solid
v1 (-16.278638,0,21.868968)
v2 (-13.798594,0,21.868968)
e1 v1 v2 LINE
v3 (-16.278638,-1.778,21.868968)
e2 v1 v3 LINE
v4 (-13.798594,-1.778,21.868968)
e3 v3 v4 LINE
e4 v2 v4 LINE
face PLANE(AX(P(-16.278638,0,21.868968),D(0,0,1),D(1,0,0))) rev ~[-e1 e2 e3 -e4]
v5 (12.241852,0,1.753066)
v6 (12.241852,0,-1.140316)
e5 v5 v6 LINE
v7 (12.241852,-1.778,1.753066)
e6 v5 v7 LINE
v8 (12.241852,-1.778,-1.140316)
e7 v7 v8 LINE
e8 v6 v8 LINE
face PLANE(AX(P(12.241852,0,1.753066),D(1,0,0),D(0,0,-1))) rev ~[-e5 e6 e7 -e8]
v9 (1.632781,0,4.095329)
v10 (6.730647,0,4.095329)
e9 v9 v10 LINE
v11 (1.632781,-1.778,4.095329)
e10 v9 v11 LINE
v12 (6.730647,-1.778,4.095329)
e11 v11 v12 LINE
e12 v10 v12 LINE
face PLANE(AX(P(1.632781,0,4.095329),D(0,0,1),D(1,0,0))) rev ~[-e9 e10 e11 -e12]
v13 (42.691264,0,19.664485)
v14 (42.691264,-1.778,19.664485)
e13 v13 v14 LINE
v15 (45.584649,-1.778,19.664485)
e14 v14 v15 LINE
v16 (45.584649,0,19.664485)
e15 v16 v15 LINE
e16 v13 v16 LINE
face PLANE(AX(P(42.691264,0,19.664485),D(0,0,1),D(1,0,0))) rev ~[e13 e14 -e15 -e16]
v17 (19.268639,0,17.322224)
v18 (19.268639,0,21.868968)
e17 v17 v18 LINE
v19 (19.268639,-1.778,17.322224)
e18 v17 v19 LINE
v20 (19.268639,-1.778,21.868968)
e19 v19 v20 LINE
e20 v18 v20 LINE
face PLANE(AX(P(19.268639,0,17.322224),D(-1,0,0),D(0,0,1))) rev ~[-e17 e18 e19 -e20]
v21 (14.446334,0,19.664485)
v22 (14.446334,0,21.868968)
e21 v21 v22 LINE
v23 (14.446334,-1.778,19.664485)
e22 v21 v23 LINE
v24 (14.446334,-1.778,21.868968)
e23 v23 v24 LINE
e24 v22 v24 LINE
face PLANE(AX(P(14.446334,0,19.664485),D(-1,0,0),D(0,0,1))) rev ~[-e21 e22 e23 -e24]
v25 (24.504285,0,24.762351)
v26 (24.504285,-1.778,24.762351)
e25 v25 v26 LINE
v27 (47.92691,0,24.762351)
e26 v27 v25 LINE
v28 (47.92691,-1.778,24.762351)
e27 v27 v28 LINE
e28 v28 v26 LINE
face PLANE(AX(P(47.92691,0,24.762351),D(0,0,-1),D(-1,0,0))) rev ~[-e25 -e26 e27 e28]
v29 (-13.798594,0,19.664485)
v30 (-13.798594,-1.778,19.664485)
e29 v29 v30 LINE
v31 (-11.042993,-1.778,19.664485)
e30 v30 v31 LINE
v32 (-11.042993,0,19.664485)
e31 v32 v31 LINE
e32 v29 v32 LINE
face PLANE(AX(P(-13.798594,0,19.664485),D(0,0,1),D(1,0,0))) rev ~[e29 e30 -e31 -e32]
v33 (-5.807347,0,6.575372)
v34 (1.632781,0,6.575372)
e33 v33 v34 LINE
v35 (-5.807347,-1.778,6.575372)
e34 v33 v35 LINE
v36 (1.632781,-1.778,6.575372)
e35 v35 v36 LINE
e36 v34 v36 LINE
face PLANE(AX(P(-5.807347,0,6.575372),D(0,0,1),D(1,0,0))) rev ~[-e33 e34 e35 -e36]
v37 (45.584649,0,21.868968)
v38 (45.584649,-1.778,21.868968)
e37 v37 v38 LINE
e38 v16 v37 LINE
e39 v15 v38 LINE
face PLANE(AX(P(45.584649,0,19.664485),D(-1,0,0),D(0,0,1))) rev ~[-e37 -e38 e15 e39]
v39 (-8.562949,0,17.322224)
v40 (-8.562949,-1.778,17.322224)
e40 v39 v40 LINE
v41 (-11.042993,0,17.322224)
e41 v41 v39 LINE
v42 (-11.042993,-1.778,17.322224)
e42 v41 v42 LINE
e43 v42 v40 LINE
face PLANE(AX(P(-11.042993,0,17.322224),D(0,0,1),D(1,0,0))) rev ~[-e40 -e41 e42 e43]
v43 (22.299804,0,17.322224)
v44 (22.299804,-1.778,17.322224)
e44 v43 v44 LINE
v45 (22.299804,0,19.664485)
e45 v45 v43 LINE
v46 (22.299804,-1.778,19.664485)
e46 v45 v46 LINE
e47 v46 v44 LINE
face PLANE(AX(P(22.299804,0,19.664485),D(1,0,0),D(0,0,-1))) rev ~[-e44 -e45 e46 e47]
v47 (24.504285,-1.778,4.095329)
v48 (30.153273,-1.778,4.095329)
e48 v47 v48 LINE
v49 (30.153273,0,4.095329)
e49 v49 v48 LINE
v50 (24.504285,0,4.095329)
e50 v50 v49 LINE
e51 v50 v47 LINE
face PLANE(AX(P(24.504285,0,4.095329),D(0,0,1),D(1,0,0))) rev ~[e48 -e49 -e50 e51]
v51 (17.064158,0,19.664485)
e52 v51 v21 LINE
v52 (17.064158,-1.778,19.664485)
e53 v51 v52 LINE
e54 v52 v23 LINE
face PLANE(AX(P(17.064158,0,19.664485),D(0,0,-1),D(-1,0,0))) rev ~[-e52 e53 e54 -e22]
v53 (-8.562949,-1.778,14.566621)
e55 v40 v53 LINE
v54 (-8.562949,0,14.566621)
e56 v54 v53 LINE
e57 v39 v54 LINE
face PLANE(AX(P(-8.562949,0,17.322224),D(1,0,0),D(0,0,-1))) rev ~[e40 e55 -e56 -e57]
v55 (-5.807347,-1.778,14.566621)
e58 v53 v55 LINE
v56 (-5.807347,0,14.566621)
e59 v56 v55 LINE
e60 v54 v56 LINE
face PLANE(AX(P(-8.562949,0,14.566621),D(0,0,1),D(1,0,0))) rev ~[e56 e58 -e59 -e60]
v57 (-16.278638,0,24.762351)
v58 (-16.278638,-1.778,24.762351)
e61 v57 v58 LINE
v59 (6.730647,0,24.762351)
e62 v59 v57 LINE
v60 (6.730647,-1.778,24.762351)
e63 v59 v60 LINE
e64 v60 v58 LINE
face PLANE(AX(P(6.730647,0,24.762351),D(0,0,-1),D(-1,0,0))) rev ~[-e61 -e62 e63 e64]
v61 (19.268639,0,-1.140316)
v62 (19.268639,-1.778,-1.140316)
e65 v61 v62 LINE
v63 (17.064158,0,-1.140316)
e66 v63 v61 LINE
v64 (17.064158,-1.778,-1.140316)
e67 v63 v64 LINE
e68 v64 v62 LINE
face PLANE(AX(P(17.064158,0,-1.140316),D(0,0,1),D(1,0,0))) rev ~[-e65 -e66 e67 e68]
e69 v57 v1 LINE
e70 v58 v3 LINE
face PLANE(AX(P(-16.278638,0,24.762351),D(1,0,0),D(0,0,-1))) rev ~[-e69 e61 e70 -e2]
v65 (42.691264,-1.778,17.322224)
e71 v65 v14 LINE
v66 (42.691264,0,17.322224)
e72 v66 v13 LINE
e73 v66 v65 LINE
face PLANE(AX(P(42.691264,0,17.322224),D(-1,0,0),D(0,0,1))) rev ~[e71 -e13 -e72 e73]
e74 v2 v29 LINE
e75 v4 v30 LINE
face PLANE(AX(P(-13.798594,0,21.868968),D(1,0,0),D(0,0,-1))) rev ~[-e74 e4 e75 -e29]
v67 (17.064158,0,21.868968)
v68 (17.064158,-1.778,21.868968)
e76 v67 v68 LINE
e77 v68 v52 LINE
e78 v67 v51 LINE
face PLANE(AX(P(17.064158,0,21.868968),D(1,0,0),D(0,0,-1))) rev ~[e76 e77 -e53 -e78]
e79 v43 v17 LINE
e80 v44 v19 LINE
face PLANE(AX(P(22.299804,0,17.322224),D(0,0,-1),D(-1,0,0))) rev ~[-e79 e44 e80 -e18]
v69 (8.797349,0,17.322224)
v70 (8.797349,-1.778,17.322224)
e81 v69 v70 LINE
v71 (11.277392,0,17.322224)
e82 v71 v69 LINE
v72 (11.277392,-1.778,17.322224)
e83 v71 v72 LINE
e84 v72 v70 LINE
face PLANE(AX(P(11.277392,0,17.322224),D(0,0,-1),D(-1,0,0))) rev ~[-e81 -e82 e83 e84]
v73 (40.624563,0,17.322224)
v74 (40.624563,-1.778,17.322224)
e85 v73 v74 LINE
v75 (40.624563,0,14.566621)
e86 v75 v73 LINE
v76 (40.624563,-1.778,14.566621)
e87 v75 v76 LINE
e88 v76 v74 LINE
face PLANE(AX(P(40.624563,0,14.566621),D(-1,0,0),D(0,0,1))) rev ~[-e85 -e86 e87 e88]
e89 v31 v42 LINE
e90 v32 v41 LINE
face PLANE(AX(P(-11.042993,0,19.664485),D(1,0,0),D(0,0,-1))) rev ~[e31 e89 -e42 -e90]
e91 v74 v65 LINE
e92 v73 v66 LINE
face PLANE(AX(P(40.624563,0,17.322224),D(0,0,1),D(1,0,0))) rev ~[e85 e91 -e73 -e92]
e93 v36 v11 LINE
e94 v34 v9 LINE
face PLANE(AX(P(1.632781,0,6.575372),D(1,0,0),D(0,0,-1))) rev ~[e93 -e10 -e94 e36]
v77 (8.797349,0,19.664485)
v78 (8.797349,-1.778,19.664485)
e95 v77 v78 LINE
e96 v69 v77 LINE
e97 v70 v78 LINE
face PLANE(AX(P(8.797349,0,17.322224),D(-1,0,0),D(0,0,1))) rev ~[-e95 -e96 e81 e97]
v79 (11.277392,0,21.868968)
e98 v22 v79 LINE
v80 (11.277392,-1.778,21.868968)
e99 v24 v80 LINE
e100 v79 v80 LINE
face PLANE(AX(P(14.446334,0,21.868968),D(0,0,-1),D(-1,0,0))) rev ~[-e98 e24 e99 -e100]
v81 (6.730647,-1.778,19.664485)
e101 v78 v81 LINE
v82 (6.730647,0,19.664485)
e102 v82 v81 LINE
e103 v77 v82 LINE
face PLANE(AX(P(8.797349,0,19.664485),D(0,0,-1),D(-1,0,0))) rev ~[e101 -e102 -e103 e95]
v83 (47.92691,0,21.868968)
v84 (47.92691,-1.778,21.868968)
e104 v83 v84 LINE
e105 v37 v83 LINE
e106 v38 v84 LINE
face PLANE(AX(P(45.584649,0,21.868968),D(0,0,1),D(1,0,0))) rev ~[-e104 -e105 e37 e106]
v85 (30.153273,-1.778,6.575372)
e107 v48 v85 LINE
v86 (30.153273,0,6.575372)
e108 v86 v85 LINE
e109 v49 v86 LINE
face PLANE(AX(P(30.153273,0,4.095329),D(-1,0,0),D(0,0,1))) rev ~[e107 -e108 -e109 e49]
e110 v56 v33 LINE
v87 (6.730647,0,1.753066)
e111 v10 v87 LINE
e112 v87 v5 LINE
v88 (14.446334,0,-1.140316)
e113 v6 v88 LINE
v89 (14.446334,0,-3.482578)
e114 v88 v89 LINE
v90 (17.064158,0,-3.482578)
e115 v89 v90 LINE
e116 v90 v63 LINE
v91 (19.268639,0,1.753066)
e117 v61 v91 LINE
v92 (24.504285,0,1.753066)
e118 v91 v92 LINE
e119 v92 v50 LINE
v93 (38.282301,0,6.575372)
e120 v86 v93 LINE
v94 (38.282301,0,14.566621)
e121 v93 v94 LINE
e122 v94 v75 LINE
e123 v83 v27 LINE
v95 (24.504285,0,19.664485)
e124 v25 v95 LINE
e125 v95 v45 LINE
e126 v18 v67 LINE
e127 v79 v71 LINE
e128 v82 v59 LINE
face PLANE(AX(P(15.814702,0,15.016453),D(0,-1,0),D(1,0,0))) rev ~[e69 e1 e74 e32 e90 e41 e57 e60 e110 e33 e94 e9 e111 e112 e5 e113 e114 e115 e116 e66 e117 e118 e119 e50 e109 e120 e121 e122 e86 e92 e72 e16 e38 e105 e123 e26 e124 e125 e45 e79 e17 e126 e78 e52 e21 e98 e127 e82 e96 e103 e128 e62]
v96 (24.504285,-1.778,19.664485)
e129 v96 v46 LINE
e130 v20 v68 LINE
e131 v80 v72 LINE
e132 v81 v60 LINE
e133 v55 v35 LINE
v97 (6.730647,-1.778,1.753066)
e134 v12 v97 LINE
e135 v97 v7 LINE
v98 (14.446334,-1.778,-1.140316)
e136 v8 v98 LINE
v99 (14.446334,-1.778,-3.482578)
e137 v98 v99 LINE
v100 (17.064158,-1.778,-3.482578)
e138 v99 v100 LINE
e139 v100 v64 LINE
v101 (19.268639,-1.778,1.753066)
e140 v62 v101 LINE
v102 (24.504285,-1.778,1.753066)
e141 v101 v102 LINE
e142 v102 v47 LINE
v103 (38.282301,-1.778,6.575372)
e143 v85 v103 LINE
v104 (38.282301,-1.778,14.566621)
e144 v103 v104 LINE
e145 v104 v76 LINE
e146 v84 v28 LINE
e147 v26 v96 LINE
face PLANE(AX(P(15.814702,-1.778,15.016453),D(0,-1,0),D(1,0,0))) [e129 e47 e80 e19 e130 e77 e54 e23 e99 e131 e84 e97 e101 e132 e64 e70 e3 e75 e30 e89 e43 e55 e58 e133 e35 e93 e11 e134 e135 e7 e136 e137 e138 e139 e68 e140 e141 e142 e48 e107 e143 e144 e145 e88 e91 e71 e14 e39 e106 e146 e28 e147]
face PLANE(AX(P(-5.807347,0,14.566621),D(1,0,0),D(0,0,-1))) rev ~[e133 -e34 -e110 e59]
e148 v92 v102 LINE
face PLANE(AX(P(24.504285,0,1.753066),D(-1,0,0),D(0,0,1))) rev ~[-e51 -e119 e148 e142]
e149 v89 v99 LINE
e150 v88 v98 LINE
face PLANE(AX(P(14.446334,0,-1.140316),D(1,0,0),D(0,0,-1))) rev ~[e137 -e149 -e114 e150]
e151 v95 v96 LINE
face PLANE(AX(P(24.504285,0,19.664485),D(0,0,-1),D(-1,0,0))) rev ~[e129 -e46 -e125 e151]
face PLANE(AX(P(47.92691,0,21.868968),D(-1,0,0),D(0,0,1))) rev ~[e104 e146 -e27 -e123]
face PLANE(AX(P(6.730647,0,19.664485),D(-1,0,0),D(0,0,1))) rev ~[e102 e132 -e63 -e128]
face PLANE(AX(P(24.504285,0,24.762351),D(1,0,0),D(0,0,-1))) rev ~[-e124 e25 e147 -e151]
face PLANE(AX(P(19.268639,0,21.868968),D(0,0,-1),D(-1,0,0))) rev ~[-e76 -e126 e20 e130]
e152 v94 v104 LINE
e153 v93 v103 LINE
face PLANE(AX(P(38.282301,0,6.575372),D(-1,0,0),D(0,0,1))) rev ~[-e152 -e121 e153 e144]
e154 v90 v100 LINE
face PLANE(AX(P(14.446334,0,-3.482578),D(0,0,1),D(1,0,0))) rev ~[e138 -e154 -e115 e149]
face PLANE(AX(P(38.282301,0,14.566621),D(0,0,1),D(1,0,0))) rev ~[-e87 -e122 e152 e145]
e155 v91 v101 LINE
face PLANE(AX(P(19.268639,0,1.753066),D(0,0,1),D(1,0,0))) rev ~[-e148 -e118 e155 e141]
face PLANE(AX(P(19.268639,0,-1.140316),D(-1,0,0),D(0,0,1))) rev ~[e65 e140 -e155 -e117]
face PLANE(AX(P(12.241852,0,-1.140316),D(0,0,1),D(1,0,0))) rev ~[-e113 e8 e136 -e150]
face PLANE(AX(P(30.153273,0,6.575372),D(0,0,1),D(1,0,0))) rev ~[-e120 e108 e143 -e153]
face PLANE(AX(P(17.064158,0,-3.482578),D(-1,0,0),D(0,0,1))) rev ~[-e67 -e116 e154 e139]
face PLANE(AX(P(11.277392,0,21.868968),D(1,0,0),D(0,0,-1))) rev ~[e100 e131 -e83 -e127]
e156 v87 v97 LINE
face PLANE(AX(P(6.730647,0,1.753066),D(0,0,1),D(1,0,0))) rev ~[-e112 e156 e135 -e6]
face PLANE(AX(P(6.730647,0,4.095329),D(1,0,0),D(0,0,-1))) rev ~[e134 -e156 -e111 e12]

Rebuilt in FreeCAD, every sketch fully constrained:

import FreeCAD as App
import Part
import Sketcher
from FreeCAD import Vector
Q = App.Units.Quantity


def add_polygon(sketch, points):
    """Adds a closed chain of lines whose ends are joined by coincident constraints."""
    first, n = sketch.GeometryCount, len(points)
    for a, b in zip(points, points[1:] + points[:1]):
        sketch.addGeometry(Part.LineSegment(App.Vector(*a, 0), App.Vector(*b, 0)), False)
    for i in range(n):
        sketch.addConstraint(Sketcher.Constraint("Coincident", first + i, 2, first + (i + 1) % n, 1))

doc = App.newDocument("Part")
body = doc.addObject("PartDesign::Body", "Body")

sketch1 = body.newObject("Sketcher::SketchObject", "Sketch")
sketch1.AttachmentSupport = (doc.getObject("XZ_Plane"), [""])
sketch1.MapMode = "FlatFace"
add_polygon(sketch1, [(6.730647, 24.762351), (-16.278638, 24.762351), (-16.278638, 21.868968), (-13.798594, 21.868968), (-13.798594, 19.664485), (-11.042993, 19.664485), (-11.042993, 17.322224), (-8.562949, 17.322224), (-8.562949, 14.566621), (-5.807347, 14.566621), (-5.807347, 6.575372), (1.632781, 6.575372), (1.632781, 4.095329), (6.730647, 4.095329), (6.730647, 1.753066), (12.241852, 1.753066), (12.241852, -1.140316), (14.446334, -1.140316), (14.446334, -3.482578), (17.064158, -3.482578), (17.064158, -1.140316), (19.268639, -1.140316), (19.268639, 1.753066), (24.504285, 1.753066), (24.504285, 4.095329), (30.153273, 4.095329), (30.153273, 6.575372), (38.282301, 6.575372), (38.282301, 14.566621), (40.624563, 14.566621), (40.624563, 17.322224), (42.691264, 17.322224), (42.691264, 19.664485), (45.584649, 19.664485), (45.584649, 21.868968), (47.92691, 21.868968), (47.92691, 24.762351), (24.504285, 24.762351), (24.504285, 19.664485), (22.299804, 19.664485), (22.299804, 17.322224), (19.268639, 17.322224), (19.268639, 21.868968), (17.064158, 21.868968), (17.064158, 19.664485), (14.446334, 19.664485), (14.446334, 21.868968), (11.277392, 21.868968), (11.277392, 17.322224), (8.797349, 17.322224), (8.797349, 19.664485), (6.730647, 19.664485)])
sketch1.addConstraint([
    Sketcher.Constraint("Horizontal", 0),
    Sketcher.Constraint("Vertical", 1),
    Sketcher.Constraint("Horizontal", 2),
    Sketcher.Constraint("Vertical", 3),
    Sketcher.Constraint("Horizontal", 4),
    Sketcher.Constraint("Vertical", 5),
    Sketcher.Constraint("Horizontal", 6),
    Sketcher.Constraint("Vertical", 7),
    Sketcher.Constraint("Horizontal", 8),
    Sketcher.Constraint("Vertical", 9),
    Sketcher.Constraint("Horizontal", 10),
    Sketcher.Constraint("Vertical", 11),
    Sketcher.Constraint("Horizontal", 12),
    Sketcher.Constraint("Vertical", 13),
    Sketcher.Constraint("Horizontal", 14),
    Sketcher.Constraint("Vertical", 15),
    Sketcher.Constraint("Horizontal", 16),
    Sketcher.Constraint("Vertical", 17),
    Sketcher.Constraint("Horizontal", 18),
    Sketcher.Constraint("Vertical", 19),
    Sketcher.Constraint("Horizontal", 20),
    Sketcher.Constraint("Vertical", 21),
    Sketcher.Constraint("Horizontal", 22),
    Sketcher.Constraint("Vertical", 23),
    Sketcher.Constraint("Horizontal", 24),
    Sketcher.Constraint("Vertical", 25),
    Sketcher.Constraint("Horizontal", 26),
    Sketcher.Constraint("Vertical", 27),
    Sketcher.Constraint("Horizontal", 28),
    Sketcher.Constraint("Vertical", 29),
    Sketcher.Constraint("Horizontal", 30),
    Sketcher.Constraint("Vertical", 31),
    Sketcher.Constraint("Horizontal", 32),
    Sketcher.Constraint("Vertical", 33),
    Sketcher.Constraint("Horizontal", 34),
    Sketcher.Constraint("Vertical", 35),
    Sketcher.Constraint("Horizontal", 36),
    Sketcher.Constraint("Vertical", 37),
    Sketcher.Constraint("Horizontal", 38),
    Sketcher.Constraint("Vertical", 39),
    Sketcher.Constraint("Horizontal", 40),
    Sketcher.Constraint("Vertical", 41),
    Sketcher.Constraint("Horizontal", 42),
    Sketcher.Constraint("Vertical", 43),
    Sketcher.Constraint("Horizontal", 44),
    Sketcher.Constraint("Vertical", 45),
    Sketcher.Constraint("Horizontal", 46),
    Sketcher.Constraint("Vertical", 47),
    Sketcher.Constraint("Horizontal", 48),
    Sketcher.Constraint("Vertical", 49),
    Sketcher.Constraint("Horizontal", 50),
    Sketcher.Constraint("Vertical", 51),
    Sketcher.Constraint("Horizontal", 16, 2, 19, 2),
    Sketcher.Constraint("Horizontal", 14, 2, 21, 2),
    Sketcher.Constraint("Horizontal", 12, 2, 23, 2),
    Sketcher.Constraint("Horizontal", 10, 2, 25, 2),
    Sketcher.Constraint("Horizontal", 8, 2, 27, 2),
    Sketcher.Constraint("Horizontal", 6, 2, 29, 2),
    Sketcher.Constraint("Horizontal", 4, 2, 31, 2),
    Sketcher.Constraint("Horizontal", 2, 2, 33, 2),
    Sketcher.Constraint("Horizontal", 0, 2, 35, 2),
    Sketcher.Constraint("Horizontal", 32, 2, 37, 2),
    Sketcher.Constraint("Horizontal", 30, 2, 39, 2),
    Sketcher.Constraint("Horizontal", 34, 2, 41, 2),
    Sketcher.Constraint("Horizontal", 38, 2, 43, 2),
    Sketcher.Constraint("Horizontal", 42, 2, 45, 2),
    Sketcher.Constraint("Horizontal", 40, 2, 47, 2),
    Sketcher.Constraint("Horizontal", 44, 2, 49, 2),
    Sketcher.Constraint("Vertical", 23, 2, 36, 2),
    Sketcher.Constraint("Vertical", 21, 2, 40, 2),
    Sketcher.Constraint("Vertical", 19, 2, 42, 2),
    Sketcher.Constraint("Vertical", 17, 2, 44, 2),
    Sketcher.Constraint("Vertical", 13, 2, 50, 2),
    Sketcher.Constraint("Equal", 2, 6),
    Sketcher.Constraint("Equal", 4, 8),
    Sketcher.Constraint("Equal", 16, 20),
    Sketcher.Constraint("Equal", 28, 34),
    Sketcher.Constraint("Equal", 20, 38),
    Sketcher.Constraint("Equal", 6, 48),
    Sketcher.Constraint("Equal", 30, 50),
    Sketcher.Constraint("Equal", 42, 3),
    Sketcher.Constraint("Equal", 34, 5),
    Sketcher.Constraint("Equal", 8, 7),
    Sketcher.Constraint("Equal", 48, 11),
    Sketcher.Constraint("Equal", 5, 13),
    Sketcher.Constraint("Equal", 1, 15),
    Sketcher.Constraint("Equal", 13, 17),
    Sketcher.Constraint("Equal", 12, 37),
    Sketcher.Constraint("DistanceX", 4, 1, 4, 2, 2.755601),
    Sketcher.Constraint("DistanceX", 30, 1, 30, 2, 2.066701),
    Sketcher.Constraint("DistanceX", 20, 1, 20, 2, 2.204481),
    Sketcher.Constraint("DistanceX", 34, 1, 34, 2, 2.342261),
    Sketcher.Constraint("DistanceX", 46, 2, 46, 1, 3.168942),
    Sketcher.Constraint("DistanceY", 9, 2, 9, 1, 7.991249),
    Sketcher.Constraint("DistanceY", 15, 2, 15, 1, 2.893382),
    Sketcher.Constraint("DistanceX", -1, 1, 26, 2, 38.282301),
    Sketcher.Constraint("DistanceX", 9, 2, 14, 2, 18.049199),
    Sketcher.Constraint("DistanceX", 0, 2, 0, 1, 23.009285),
    Sketcher.Constraint("DistanceX", 18, 1, 18, 2, 2.617824),
    Sketcher.Constraint("DistanceX", 22, 1, 22, 2, 5.235646),
    Sketcher.Constraint("DistanceX", 24, 1, 24, 2, 5.648988),
    Sketcher.Constraint("DistanceX", 26, 1, 26, 2, 8.129028),
    Sketcher.Constraint("DistanceX", 32, 1, 32, 2, 2.893385),
    Sketcher.Constraint("DistanceY", -1, 1, 0, 2, 24.762351),
])
pad1 = body.newObject("PartDesign::Pad", "Pad")
pad1.Profile = sketch1
pad1.Length = Q("0.07 in")

doc.recompute()
